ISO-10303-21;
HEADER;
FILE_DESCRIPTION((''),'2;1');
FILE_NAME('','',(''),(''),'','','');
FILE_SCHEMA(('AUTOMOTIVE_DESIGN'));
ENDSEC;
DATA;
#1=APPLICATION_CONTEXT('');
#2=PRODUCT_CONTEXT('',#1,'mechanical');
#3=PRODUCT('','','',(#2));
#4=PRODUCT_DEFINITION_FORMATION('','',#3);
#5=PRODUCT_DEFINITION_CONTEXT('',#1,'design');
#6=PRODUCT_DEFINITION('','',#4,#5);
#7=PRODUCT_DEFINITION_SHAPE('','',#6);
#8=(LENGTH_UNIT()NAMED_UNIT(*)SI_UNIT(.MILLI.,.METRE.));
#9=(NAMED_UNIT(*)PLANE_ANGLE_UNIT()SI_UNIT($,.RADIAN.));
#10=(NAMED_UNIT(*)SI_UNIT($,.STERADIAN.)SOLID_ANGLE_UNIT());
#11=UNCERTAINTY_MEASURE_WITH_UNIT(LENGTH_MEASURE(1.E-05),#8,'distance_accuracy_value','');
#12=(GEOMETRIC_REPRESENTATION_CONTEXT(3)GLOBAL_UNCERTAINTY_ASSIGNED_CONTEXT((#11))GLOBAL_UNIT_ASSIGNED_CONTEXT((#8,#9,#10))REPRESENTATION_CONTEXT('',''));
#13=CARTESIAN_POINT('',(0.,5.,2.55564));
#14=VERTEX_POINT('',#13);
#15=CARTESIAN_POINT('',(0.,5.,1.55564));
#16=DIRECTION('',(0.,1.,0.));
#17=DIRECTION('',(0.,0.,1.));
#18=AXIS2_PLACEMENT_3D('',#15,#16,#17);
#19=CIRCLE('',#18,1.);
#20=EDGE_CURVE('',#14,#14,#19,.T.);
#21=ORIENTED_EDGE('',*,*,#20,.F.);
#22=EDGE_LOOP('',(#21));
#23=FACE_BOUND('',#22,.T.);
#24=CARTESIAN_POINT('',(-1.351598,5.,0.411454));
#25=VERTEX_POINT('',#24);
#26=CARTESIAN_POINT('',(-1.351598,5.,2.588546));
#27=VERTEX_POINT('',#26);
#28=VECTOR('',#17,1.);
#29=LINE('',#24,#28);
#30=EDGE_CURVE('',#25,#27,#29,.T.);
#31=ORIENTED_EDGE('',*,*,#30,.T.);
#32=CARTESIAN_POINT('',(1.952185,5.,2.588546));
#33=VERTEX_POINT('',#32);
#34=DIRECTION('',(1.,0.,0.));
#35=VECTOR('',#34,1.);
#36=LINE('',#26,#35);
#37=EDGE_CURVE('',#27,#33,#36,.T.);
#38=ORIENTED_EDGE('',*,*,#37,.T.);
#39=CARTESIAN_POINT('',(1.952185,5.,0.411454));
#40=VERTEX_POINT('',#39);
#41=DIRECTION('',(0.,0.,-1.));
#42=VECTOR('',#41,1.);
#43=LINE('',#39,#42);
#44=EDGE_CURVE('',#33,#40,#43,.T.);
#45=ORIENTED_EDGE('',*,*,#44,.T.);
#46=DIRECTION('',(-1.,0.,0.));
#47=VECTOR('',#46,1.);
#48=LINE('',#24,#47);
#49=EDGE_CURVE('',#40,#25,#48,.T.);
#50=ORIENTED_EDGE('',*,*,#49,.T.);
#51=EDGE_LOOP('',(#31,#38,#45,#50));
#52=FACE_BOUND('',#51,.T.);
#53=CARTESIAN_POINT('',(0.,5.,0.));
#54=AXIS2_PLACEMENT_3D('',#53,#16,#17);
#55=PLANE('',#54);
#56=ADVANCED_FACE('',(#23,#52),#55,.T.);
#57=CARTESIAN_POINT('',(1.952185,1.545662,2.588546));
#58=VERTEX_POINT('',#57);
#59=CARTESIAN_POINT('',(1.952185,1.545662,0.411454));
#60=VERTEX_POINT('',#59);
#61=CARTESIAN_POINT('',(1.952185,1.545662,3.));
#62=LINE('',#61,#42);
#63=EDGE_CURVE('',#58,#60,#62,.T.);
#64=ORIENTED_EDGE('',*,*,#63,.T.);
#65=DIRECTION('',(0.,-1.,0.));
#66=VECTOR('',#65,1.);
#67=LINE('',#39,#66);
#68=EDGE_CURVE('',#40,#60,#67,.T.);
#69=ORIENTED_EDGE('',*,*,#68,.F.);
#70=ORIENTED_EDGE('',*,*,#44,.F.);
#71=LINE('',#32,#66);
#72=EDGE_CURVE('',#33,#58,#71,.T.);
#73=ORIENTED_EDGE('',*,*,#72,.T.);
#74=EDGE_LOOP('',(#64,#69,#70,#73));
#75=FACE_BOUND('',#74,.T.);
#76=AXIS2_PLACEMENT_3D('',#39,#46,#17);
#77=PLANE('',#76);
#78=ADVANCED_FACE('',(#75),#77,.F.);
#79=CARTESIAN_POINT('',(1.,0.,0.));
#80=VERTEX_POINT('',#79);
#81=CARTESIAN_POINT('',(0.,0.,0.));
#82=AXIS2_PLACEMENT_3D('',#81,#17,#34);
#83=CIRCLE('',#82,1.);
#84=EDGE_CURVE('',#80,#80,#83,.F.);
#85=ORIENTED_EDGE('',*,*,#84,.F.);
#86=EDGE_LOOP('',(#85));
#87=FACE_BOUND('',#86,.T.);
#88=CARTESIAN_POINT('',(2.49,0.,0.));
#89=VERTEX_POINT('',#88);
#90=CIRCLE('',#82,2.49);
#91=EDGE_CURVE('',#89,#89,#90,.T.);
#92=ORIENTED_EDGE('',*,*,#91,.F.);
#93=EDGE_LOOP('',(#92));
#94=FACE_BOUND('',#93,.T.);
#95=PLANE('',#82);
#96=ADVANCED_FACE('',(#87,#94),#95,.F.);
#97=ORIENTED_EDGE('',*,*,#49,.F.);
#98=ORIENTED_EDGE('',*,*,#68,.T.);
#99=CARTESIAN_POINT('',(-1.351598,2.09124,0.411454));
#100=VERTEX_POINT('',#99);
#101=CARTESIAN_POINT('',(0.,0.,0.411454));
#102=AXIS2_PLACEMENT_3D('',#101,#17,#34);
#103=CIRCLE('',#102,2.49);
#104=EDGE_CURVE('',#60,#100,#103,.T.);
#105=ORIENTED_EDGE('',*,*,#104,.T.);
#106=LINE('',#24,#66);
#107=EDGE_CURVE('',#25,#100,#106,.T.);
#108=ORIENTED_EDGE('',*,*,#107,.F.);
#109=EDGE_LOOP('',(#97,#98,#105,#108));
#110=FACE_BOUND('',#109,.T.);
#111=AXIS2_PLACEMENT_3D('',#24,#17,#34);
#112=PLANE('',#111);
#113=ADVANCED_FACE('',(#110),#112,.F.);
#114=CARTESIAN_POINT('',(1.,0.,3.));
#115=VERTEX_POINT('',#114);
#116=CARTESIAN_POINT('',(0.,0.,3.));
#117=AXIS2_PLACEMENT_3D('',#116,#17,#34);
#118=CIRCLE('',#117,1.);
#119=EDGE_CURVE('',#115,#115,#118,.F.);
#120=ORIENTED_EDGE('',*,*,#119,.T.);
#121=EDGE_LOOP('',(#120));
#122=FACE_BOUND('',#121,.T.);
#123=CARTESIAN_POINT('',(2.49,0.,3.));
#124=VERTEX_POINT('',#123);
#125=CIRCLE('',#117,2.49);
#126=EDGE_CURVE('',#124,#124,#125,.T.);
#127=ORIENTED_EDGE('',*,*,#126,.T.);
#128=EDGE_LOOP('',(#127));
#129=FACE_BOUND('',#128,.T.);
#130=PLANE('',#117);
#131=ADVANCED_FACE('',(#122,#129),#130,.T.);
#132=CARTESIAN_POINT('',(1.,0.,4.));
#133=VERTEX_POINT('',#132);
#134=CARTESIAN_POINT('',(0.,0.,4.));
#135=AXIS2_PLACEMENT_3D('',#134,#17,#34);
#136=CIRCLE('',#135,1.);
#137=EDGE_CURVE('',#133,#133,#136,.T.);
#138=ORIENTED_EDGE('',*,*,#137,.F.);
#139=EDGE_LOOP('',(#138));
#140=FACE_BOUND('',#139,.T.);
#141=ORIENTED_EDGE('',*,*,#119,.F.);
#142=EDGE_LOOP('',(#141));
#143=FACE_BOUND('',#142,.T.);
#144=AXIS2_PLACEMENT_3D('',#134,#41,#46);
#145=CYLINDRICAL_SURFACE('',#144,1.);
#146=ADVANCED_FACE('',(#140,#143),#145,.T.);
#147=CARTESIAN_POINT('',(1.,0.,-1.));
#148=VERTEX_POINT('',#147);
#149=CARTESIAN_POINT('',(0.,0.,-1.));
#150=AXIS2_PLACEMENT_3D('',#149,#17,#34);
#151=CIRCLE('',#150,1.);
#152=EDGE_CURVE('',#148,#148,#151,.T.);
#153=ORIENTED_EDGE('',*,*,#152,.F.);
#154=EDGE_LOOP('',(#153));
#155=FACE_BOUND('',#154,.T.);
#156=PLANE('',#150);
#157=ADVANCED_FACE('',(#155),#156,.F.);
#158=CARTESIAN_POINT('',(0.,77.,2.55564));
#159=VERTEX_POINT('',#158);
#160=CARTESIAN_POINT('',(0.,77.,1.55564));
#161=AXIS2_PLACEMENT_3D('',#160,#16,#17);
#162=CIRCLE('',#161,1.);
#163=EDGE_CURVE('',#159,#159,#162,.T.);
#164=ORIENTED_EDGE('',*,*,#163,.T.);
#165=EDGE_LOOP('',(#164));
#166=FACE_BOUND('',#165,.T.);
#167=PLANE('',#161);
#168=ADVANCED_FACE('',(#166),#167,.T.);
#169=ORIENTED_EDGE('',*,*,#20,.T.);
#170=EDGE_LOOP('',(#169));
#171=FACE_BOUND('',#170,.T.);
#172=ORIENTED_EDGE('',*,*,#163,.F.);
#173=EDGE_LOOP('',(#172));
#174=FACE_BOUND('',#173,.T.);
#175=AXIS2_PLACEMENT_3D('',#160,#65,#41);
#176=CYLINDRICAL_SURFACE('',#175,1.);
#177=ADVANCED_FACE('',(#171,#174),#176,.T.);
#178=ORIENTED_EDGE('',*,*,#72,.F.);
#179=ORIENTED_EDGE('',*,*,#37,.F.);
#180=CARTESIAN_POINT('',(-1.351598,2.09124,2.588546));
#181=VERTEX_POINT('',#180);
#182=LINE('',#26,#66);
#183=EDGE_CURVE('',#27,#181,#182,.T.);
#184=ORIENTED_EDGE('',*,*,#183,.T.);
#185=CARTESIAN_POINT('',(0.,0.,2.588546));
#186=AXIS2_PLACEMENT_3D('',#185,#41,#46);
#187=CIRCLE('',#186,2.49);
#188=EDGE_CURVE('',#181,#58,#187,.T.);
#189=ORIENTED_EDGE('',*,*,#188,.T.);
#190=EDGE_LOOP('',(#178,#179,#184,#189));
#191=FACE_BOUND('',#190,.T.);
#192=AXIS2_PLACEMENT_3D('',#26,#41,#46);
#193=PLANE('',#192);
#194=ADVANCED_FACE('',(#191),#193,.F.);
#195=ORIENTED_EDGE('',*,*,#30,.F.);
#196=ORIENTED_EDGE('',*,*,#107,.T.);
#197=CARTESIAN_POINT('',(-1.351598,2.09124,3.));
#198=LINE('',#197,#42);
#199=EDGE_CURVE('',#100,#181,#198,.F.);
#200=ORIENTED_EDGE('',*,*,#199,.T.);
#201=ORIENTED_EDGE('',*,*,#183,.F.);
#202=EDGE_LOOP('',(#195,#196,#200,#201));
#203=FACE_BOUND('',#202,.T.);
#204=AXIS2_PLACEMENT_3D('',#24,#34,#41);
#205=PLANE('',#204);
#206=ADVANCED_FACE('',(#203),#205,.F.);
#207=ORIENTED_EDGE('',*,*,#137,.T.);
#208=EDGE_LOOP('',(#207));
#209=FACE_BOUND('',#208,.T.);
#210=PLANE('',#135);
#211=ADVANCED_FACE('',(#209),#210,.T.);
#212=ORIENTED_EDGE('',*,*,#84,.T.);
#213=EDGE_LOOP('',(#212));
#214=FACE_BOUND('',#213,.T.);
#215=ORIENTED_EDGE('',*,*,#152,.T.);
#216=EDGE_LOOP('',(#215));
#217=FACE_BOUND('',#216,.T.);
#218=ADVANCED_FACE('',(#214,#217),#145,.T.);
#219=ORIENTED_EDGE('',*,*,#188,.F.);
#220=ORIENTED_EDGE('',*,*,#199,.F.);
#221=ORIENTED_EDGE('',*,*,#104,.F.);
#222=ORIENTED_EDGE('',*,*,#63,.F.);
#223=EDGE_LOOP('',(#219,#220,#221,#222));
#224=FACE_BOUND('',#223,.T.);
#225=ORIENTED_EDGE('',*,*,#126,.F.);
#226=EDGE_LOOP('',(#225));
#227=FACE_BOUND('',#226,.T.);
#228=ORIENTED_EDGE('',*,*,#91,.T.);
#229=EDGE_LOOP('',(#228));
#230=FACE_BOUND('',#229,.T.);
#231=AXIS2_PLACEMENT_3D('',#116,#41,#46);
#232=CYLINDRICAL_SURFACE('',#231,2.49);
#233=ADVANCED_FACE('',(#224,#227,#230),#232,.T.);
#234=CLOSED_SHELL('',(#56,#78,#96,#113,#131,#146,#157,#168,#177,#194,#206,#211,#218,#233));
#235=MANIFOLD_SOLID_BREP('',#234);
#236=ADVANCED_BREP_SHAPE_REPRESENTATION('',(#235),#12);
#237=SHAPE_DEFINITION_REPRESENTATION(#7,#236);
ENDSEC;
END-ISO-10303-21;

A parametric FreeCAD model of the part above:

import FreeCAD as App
import Part
import Sketcher

V = App.Vector
Q = App.Units.Quantity


def add_polygon(sketch, points):
    """Adds a closed chain of lines whose ends are joined by coincident constraints."""
    first, n = sketch.GeometryCount, len(points)
    for a, b in zip(points, points[1:] + points[:1]):
        sketch.addGeometry(Part.LineSegment(App.Vector(*a, 0), App.Vector(*b, 0)), False)
    for i in range(n):
        sketch.addConstraint(Sketcher.Constraint("Coincident", first + i, 2, first + (i + 1) % n, 1))

doc = App.newDocument("Part")
body = doc.addObject("PartDesign::Body", "Body")

# Sketch on XY plane
sketch1 = doc.addObject("Sketcher::SketchObject", "Sketch")
body.addObject(sketch1)
sketch1.AttachmentSupport = (doc.XY_Plane, [""])
sketch1.MapMode = "FlatFace"
sketch1.addGeometry(Part.Circle(V(0, 0, 0), V(0, 0, 1), 2.49), False)
sketch1.addConstraint([
    Sketcher.Constraint("Coincident", 0, 3, -1, 1),
    Sketcher.Constraint("Diameter", 0, Q("4.98 mm")),
])
pad1 = doc.addObject("PartDesign::Pad", "Pad")
body.addObject(pad1)
pad1.Profile = sketch1
pad1.Length = 3

# Sketch on XY plane
sketch2 = doc.addObject("Sketcher::SketchObject", "Sketch001")
body.addObject(sketch2)
sketch2.AttachmentSupport = (doc.XY_Plane, [""])
sketch2.MapMode = "FlatFace"
sketch2.AttachmentOffset = App.Placement(V(0, 0, 3), App.Rotation())
sketch2.addGeometry(Part.Circle(V(0, 0, 0), V(0, 0, 1), 1), False)
sketch2.addConstraint([
    Sketcher.Constraint("Coincident", 0, 3, -1, 1),
    Sketcher.Constraint("Diameter", 0, Q("2 mm")),
])
pad2 = doc.addObject("PartDesign::Pad", "Pad001")
body.addObject(pad2)
pad2.Profile = sketch2
pad2.Type = "TwoLengths"
pad2.Length = 1
pad2.Length2 = 4

# Sketch on XZ plane
sketch3 = doc.addObject("Sketcher::SketchObject", "Sketch002")
body.addObject(sketch3)
sketch3.AttachmentSupport = (doc.XZ_Plane, [""])
sketch3.MapMode = "FlatFace"
add_polygon(sketch3, [(-1.351598, 0.411454), (-1.351598, 2.588546), (1.952185, 2.588546), (1.952185, 0.411454)])  # lines 0-3
sketch3.addConstraint([
    Sketcher.Constraint("Vertical", 0),
    Sketcher.Constraint("Horizontal", 1),
    Sketcher.Constraint("Vertical", 2),
    Sketcher.Constraint("Horizontal", 3),
    Sketcher.Constraint("DistanceY", 0, 1, 0, 2, Q("2.177092 mm")),
    Sketcher.Constraint("DistanceX", 0, 2, -1, 1, Q("1.351598 mm")),
    Sketcher.Constraint("DistanceX", 1, 1, 1, 2, Q("3.303783 mm")),
    Sketcher.Constraint("DistanceY", -1, 1, 0, 2, Q("2.588546 mm")),
])
pad3 = doc.addObject("PartDesign::Pad", "Pad002")
body.addObject(pad3)
pad3.Profile = sketch3
pad3.Length = 5
pad3.Reversed = True

# Sketch on XZ plane
sketch4 = doc.addObject("Sketcher::SketchObject", "Sketch003")
body.addObject(sketch4)
sketch4.AttachmentSupport = (doc.XZ_Plane, [""])
sketch4.MapMode = "FlatFace"
sketch4.AttachmentOffset = App.Placement(V(0, 0, -5), App.Rotation())
sketch4.addGeometry(Part.Circle(V(0, 1.55564, 0), V(0, 0, 1), 1), False)
sketch4.addConstraint([
    Sketcher.Constraint("PointOnObject", 0, 3, -2),
    Sketcher.Constraint("Diameter", 0, Q("2 mm")),
    Sketcher.Constraint("DistanceY", -1, 1, 0, 3, Q("1.55564 mm")),
])
pad4 = doc.addObject("PartDesign::Pad", "Pad003")
body.addObject(pad4)
pad4.Profile = sketch4
pad4.Length = 72
pad4.Reversed = True

doc.recompute()
